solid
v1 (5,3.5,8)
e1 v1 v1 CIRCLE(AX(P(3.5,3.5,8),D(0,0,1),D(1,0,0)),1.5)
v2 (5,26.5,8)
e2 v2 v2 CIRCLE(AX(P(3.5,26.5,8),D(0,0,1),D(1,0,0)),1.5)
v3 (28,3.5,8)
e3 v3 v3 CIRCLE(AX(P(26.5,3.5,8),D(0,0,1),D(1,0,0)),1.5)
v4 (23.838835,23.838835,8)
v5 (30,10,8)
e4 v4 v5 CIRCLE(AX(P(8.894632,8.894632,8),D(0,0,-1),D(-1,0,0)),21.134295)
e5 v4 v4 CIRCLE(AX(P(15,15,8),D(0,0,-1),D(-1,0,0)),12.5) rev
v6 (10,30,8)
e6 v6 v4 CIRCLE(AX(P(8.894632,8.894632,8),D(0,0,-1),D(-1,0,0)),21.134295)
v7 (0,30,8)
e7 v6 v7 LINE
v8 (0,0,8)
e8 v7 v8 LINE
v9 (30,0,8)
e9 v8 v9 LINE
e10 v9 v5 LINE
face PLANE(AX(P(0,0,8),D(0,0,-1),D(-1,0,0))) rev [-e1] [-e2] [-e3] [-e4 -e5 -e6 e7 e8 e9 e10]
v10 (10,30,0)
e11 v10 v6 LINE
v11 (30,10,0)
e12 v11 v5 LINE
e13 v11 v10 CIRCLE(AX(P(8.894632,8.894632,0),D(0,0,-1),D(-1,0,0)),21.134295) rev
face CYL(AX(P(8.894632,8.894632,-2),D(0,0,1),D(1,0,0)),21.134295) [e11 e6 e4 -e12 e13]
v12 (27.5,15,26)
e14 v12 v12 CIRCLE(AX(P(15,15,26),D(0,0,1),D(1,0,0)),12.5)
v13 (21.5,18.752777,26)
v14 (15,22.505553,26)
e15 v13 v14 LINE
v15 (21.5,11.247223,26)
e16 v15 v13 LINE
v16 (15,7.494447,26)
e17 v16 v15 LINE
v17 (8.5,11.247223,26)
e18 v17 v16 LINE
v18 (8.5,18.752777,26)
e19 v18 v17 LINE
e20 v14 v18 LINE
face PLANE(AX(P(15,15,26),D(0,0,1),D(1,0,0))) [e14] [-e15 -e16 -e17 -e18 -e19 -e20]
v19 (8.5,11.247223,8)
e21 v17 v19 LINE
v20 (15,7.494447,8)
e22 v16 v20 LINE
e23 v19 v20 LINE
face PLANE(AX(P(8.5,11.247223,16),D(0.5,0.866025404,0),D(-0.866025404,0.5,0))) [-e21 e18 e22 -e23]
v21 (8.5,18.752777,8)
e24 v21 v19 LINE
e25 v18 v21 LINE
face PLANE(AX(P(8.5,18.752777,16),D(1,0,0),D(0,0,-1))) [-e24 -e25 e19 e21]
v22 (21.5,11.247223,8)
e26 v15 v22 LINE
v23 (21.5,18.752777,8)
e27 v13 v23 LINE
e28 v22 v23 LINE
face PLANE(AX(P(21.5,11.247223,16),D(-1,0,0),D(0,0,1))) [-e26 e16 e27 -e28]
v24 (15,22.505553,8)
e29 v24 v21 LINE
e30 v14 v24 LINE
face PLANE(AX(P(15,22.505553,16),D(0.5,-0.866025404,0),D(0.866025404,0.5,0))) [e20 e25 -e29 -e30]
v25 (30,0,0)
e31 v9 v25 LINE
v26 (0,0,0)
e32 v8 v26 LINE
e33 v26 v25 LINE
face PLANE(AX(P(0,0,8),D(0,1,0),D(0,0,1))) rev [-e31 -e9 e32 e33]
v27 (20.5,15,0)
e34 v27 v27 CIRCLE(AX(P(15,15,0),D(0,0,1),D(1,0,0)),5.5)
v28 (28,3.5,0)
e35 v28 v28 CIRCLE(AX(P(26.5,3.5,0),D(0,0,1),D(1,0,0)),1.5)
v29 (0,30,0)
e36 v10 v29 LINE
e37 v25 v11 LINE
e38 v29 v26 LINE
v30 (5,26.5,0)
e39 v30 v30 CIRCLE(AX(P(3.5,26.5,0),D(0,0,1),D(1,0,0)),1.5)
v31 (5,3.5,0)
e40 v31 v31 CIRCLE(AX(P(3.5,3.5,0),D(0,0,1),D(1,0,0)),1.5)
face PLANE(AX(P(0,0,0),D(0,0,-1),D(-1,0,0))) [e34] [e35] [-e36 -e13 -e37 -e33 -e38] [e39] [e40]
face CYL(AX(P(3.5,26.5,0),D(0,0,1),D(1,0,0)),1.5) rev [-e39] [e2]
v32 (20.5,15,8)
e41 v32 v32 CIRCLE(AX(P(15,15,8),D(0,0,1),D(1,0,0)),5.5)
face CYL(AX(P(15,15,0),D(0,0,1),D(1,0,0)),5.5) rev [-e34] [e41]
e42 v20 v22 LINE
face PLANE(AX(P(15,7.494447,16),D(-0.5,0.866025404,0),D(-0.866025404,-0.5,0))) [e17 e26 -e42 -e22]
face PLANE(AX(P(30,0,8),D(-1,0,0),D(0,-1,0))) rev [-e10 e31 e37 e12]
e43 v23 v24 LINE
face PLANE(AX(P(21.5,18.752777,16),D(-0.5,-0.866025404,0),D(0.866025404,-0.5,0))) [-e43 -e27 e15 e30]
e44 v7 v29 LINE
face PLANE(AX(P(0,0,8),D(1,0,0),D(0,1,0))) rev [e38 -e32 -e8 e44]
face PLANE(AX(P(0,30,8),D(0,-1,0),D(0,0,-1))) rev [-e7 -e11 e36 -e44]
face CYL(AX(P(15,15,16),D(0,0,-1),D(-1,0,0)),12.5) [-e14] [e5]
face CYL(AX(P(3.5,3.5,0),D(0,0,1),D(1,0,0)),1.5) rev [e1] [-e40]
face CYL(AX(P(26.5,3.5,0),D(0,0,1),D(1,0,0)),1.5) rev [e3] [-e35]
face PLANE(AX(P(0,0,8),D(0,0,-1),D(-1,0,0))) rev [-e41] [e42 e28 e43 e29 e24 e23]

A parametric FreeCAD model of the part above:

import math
import FreeCAD as App
import Part
import Sketcher

V = App.Vector
Q = App.Units.Quantity


def add_polygon(sketch, points):
    """Adds a closed chain of lines whose ends are joined by coincident constraints."""
    first, n = sketch.GeometryCount, len(points)
    for a, b in zip(points, points[1:] + points[:1]):
        sketch.addGeometry(Part.LineSegment(App.Vector(*a, 0), App.Vector(*b, 0)), False)
    for i in range(n):
        sketch.addConstraint(Sketcher.Constraint("Coincident", first + i, 2, first + (i + 1) % n, 1))

doc = App.newDocument("Part")
body = doc.addObject("PartDesign::Body", "Body")

# Sketch on XY plane
sketch1 = doc.addObject("Sketcher::SketchObject", "Sketch")
body.addObject(sketch1)
sketch1.AttachmentSupport = (doc.XY_Plane, [""])
sketch1.MapMode = "FlatFace"
add_polygon(sketch1, [(0, 30), (0, 0), (30, 0), (30, 30)])  # lines 0-3
sketch1.addConstraint([
    Sketcher.Constraint("Vertical", 0),
    Sketcher.Constraint("Horizontal", 1),
    Sketcher.Constraint("Vertical", 2),
    Sketcher.Constraint("Horizontal", 3),
    Sketcher.Constraint("Coincident", 0, 2, -1, 1),
    Sketcher.Constraint("Equal", 3, 0),
    Sketcher.Constraint("DistanceX", 1, 1, 1, 2, 30.0),
])
pad1 = doc.addObject("PartDesign::Pad", "Pad")
body.addObject(pad1)
pad1.Profile = sketch1
pad1.Length = 8

# Sketch on XY plane
sketch2 = doc.addObject("Sketcher::SketchObject", "Sketch001")
body.addObject(sketch2)
sketch2.AttachmentSupport = (doc.XY_Plane, [""])
sketch2.MapMode = "FlatFace"
sketch2.AttachmentOffset = App.Placement(V(0, 0, 8), App.Rotation())
sketch2.addGeometry(Part.Circle(V(15, 15, 0), V(0, 0, 1), 12), False)  # 0
add_polygon(sketch2, [(8, 19), (15, 23), (22, 19), (22, 11), (15, 7), (8, 11)])  # lines 1-6
sketch2.addConstraint([
    Sketcher.Constraint("Vertical", 3),
    Sketcher.Constraint("Vertical", 6),
    Sketcher.Constraint("Parallel", 1, 4),
    Sketcher.Constraint("Parallel", 2, 5),
    Sketcher.Constraint("Horizontal", 3, 2, 5, 2),
    Sketcher.Constraint("Horizontal", 2, 2, 6, 2),
    Sketcher.Constraint("Vertical", 0, 3, 1, 2),
    Sketcher.Constraint("Vertical", 1, 2, 4, 2),
    Sketcher.Constraint("Diameter", 0, 25.0),
    Sketcher.Constraint("Angle", 1, Q("30 deg")),
    Sketcher.Constraint("DistanceX", -1, 1, 0, 3, 15.0),
    Sketcher.Constraint("DistanceY", -1, 1, 0, 3, 15.0),
    Sketcher.Constraint("DistanceX", 5, 2, 3, 2, 13.0),
    Sketcher.Constraint("DistanceY", 3, 2, 3, 1, 7.505553),
    Sketcher.Constraint("DistanceY", -1, 1, 1, 2, 22.505553),
])
pad2 = doc.addObject("PartDesign::Pad", "Pad001")
body.addObject(pad2)
pad2.Profile = sketch2
pad2.Length = 8

# Sketch on XY plane
sketch3 = doc.addObject("Sketcher::SketchObject", "Sketch002")
body.addObject(sketch3)
sketch3.AttachmentSupport = (doc.XY_Plane, [""])
sketch3.MapMode = "FlatFace"
sketch3.AttachmentOffset = App.Placement(V(0, 0, 8), App.Rotation())
sketch3.addGeometry(Part.Circle(V(15, 15, 0), V(0, 0, 1), 6), False)
sketch3.addConstraint([
    Sketcher.Constraint("Diameter", 0, 11.0),
    Sketcher.Constraint("DistanceX", -1, 1, 0, 3, 15.0),
    Sketcher.Constraint("DistanceY", -1, 1, 0, 3, 15.0),
])
pocket1 = doc.addObject("PartDesign::Pocket", "Pocket")
body.addObject(pocket1)
pocket1.Profile = sketch3
pocket1.Length = 8

# Sketch on XY plane
sketch4 = doc.addObject("Sketcher::SketchObject", "Sketch003")
body.addObject(sketch4)
sketch4.AttachmentSupport = (doc.XY_Plane, [""])
sketch4.MapMode = "FlatFace"
sketch4.AttachmentOffset = App.Placement(V(0, 0, 8), App.Rotation())
sketch4.addGeometry([
    Part.Circle(V(3.5, 26.5, 0), V(0, 0, 1), 1.5),
    Part.Circle(V(26.5, 26.5, 0), V(0, 0, 1), 1.5),
    Part.Circle(V(26.5, 3.5, 0), V(0, 0, 1), 1.5),
    Part.Circle(V(3.5, 3.5, 0), V(0, 0, 1), 1.5),
], False)
sketch4.addConstraint([
    Sketcher.Constraint("Equal", 0, 1),
    Sketcher.Constraint("Equal", 1, 2),
    Sketcher.Constraint("Equal", 2, 3),
    Sketcher.Constraint("Horizontal", 0, 3, 1, 3),
    Sketcher.Constraint("Horizontal", 2, 3, 3, 3),
    Sketcher.Constraint("Vertical", 1, 3, 2, 3),
    Sketcher.Constraint("Vertical", 0, 3, 3, 3),
    Sketcher.Constraint("Diameter", 0, 3.0),
    Sketcher.Constraint("DistanceX", 0, 3, 1, 3, 23.0),
    Sketcher.Constraint("DistanceY", 2, 3, 1, 3, 23.0),
    Sketcher.Constraint("DistanceX", -1, 1, 0, 3, 3.5),
    Sketcher.Constraint("DistanceY", -1, 1, 0, 3, 26.5),
])
pocket2 = doc.addObject("PartDesign::Pocket", "Pocket001")
body.addObject(pocket2)
pocket2.Profile = sketch4
pocket2.Length = 8

# Sketch on XY plane
sketch5 = doc.addObject("Sketcher::SketchObject", "Sketch004")
body.addObject(sketch5)
sketch5.AttachmentSupport = (doc.XY_Plane, [""])
sketch5.MapMode = "FlatFace"
sketch5.AttachmentOffset = App.Placement(V(0, 0, 16), App.Rotation())
sketch5.addGeometry(Part.Circle(V(15, 15, 0), V(0, 0, 1), 12), False)  # 0
add_polygon(sketch5, [(8, 19), (15, 23), (22, 19), (22, 11), (15, 7), (8, 11)])  # lines 1-6
sketch5.addConstraint([
    Sketcher.Constraint("Vertical", 3),
    Sketcher.Constraint("Vertical", 6),
    Sketcher.Constraint("Parallel", 1, 4),
    Sketcher.Constraint("Parallel", 2, 5),
    Sketcher.Constraint("Horizontal", 3, 2, 5, 2),
    Sketcher.Constraint("Horizontal", 2, 2, 6, 2),
    Sketcher.Constraint("Vertical", 0, 3, 1, 2),
    Sketcher.Constraint("Vertical", 1, 2, 4, 2),
    Sketcher.Constraint("Diameter", 0, 25.0),
    Sketcher.Constraint("Angle", 1, Q("30 deg")),
    Sketcher.Constraint("DistanceX", -1, 1, 0, 3, 15.0),
    Sketcher.Constraint("DistanceY", -1, 1, 0, 3, 15.0),
    Sketcher.Constraint("DistanceX", 5, 2, 3, 2, 13.0),
    Sketcher.Constraint("DistanceY", 3, 2, 3, 1, 7.505553),
    Sketcher.Constraint("DistanceY", -1, 1, 1, 2, 22.505553),
])
pad3 = doc.addObject("PartDesign::Pad", "Pad002")
body.addObject(pad3)
pad3.Profile = sketch5
pad3.Length = 10

# Sketch on XY plane
sketch6 = doc.addObject("Sketcher::SketchObject", "Sketch005")
body.addObject(sketch6)
sketch6.AttachmentSupport = (doc.XY_Plane, [""])
sketch6.MapMode = "FlatFace"
sketch6.AttachmentOffset = App.Placement(V(0, 0, 8), App.Rotation())
sketch6.addGeometry([
    Part.LineSegment(V(30, 30, 0), V(10, 30, 0)),
    Part.ArcOfCircle(Part.Circle(V(9, 9, 0), V(0, 0, 1), 21), math.radians(3), math.radians(87)),
    Part.LineSegment(V(30, 10, 0), V(30, 30, 0)),
], False)
sketch6.addConstraint([
    Sketcher.Constraint("Coincident", 0, 2, 1, 2),
    Sketcher.Constraint("Coincident", 1, 1, 2, 1),
    Sketcher.Constraint("Coincident", 2, 2, 0, 1),
    Sketcher.Constraint("Horizontal", 0),
    Sketcher.Constraint("Vertical", 2),
    Sketcher.Constraint("Equal", 0, 2),
    Sketcher.Constraint("DistanceX", 0, 2, 0, 1, 20.0),
    Sketcher.Constraint("DistanceX", -1, 1, 0, 2, 10.0),
    Sketcher.Constraint("DistanceY", -1, 1, 0, 2, 30.0),
    Sketcher.Constraint("Radius", 1, 21.134295),
])
pocket3 = doc.addObject("PartDesign::Pocket", "Pocket002")
body.addObject(pocket3)
pocket3.Profile = sketch6
pocket3.Length = 10

doc.recompute()
